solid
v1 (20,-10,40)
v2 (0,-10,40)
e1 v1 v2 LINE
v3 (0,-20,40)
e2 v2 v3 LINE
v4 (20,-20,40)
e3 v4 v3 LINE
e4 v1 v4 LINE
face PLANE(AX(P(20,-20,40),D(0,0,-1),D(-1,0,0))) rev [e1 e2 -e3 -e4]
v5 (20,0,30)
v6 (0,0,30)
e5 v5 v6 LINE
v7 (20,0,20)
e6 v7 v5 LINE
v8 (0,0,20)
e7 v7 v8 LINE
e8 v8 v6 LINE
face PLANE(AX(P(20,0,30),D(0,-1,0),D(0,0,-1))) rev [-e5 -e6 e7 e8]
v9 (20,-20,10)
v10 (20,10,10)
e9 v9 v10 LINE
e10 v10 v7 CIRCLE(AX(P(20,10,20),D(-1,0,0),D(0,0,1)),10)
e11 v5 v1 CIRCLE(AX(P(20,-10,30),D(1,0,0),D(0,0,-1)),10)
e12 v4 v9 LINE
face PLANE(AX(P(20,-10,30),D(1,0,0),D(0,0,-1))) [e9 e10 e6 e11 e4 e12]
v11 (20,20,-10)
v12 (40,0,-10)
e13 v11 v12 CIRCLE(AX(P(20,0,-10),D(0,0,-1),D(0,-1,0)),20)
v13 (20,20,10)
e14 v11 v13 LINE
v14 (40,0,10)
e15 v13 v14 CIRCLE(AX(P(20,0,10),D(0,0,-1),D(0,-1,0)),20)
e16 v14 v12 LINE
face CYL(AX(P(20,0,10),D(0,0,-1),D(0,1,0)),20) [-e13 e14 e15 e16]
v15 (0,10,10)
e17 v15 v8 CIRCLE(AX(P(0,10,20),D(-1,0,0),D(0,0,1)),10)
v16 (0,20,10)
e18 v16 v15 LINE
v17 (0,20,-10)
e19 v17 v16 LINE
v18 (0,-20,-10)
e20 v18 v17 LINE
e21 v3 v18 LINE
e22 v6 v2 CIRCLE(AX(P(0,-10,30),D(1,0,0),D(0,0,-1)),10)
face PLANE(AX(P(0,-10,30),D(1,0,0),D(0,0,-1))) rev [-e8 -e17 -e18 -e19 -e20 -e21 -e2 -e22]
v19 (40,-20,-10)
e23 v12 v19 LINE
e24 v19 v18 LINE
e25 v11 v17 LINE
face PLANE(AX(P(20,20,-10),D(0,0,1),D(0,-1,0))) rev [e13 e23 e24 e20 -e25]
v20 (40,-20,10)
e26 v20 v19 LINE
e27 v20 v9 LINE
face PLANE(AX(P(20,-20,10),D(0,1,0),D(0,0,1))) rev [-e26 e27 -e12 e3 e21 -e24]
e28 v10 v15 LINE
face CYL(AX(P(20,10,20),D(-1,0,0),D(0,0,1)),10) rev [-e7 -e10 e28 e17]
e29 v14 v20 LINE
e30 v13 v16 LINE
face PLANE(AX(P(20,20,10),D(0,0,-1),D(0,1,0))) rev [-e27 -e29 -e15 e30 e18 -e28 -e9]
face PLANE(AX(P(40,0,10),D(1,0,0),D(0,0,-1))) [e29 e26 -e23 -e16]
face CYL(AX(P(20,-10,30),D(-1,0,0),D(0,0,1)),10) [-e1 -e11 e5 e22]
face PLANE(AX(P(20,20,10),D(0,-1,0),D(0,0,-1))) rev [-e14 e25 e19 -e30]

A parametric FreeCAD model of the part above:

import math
import FreeCAD as App
import Part
import Sketcher
from FreeCAD import Vector
Q = App.Units.Quantity

doc = App.newDocument("Part")
body = doc.addObject("PartDesign::Body", "Body")

sketch1 = body.newObject("Sketcher::SketchObject", "Sketch")
sketch1.AttachmentSupport = (doc.getObject("YZ_Plane"), [""])
sketch1.MapMode = "FlatFace"
sketch1.addGeometry([
    Part.LineSegment(Vector(-10, 40, 0), Vector(-20, 40, 0)),
    Part.LineSegment(Vector(-20, 40, 0), Vector(-20, -10, 0)),
    Part.LineSegment(Vector(-20, -10, 0), Vector(20, -10, 0)),
    Part.LineSegment(Vector(20, -10, 0), Vector(20, 10, 0)),
    Part.LineSegment(Vector(20, 10, 0), Vector(10, 10, 0)),
    Part.ArcOfCircle(Part.Circle(Vector(10, 20, 0), Vector(0, 0, 1), 10), math.radians(180), math.radians(270)),
    Part.LineSegment(Vector(0, 20, 0), Vector(0, 30, 0)),
    Part.ArcOfCircle(Part.Circle(Vector(-10, 30, 0), Vector(0, 0, 1), 10), math.radians(0), math.radians(90)),
], False)
sketch1.addConstraint([
    Sketcher.Constraint("Coincident", 0, 2, 1, 1),
    Sketcher.Constraint("Coincident", 1, 2, 2, 1),
    Sketcher.Constraint("Coincident", 2, 2, 3, 1),
    Sketcher.Constraint("Coincident", 3, 2, 4, 1),
    Sketcher.Constraint("Tangent", 4, 2, 5, 2),
    Sketcher.Constraint("Tangent", 5, 1, 6, 1),
    Sketcher.Constraint("Tangent", 6, 2, 7, 1),
    Sketcher.Constraint("Tangent", 7, 2, 0, 1),
    Sketcher.Constraint("Horizontal", 0),
    Sketcher.Constraint("Vertical", 1),
    Sketcher.Constraint("Horizontal", 2),
    Sketcher.Constraint("Vertical", 3),
    Sketcher.Constraint("Horizontal", 4),
    Sketcher.Constraint("Vertical", 6),
    Sketcher.Constraint("Equal", 5, 7),
    Sketcher.Constraint("Symmetric", 1, 2, 3, 2, -1, 1),
    Sketcher.Constraint("PointOnObject", 5, 1, -2),
    Sketcher.Constraint("Equal", 4, 6),
    Sketcher.Constraint("Radius", 5, Q("10 mm")),
    Sketcher.Constraint("DistanceX", 0, 2, 0, 1, Q("10 mm")),
    Sketcher.Constraint("DistanceY", 1, 2, 1, 1, Q("50 mm")),
])
pad1 = body.newObject("PartDesign::Pad", "Pad")
pad1.Profile = sketch1
pad1.Length = 20

sketch2 = body.newObject("Sketcher::SketchObject", "Sketch001")
sketch2.AttachmentSupport = (doc.getObject("XY_Plane"), [""])
sketch2.MapMode = "FlatFace"
sketch2.AttachmentOffset = App.Placement(Vector(0, 0, -10), App.Rotation())
sketch2.addGeometry([
    Part.LineSegment(Vector(40, 0, 0), Vector(40, -20, 0)),
    Part.LineSegment(Vector(40, -20, 0), Vector(20, -20, 0)),
    Part.LineSegment(Vector(20, -20, 0), Vector(20, 20, 0)),
    Part.ArcOfCircle(Part.Circle(Vector(20, 0, 0), Vector(0, 0, 1), 20), math.radians(0), math.radians(90)),
], False)
sketch2.addConstraint([
    Sketcher.Constraint("Coincident", 0, 2, 1, 1),
    Sketcher.Constraint("Coincident", 1, 2, 2, 1),
    Sketcher.Constraint("Coincident", 2, 2, 3, 2),
    Sketcher.Constraint("Tangent", 3, 1, 0, 1),
    Sketcher.Constraint("Vertical", 0),
    Sketcher.Constraint("Horizontal", 1),
    Sketcher.Constraint("Vertical", 2),
    Sketcher.Constraint("PointOnObject", 3, 3, -1),
    Sketcher.Constraint("Vertical", 3, 3, 1, 2),
    Sketcher.Constraint("Equal", 1, 0),
    Sketcher.Constraint("Radius", 3, Q("20 mm")),
    Sketcher.Constraint("DistanceX", -1, 1, 3, 3, Q("20 mm")),
])
pad2 = body.newObject("PartDesign::Pad", "Pad001")
pad2.Profile = sketch2
pad2.Length = 20

doc.recompute()
